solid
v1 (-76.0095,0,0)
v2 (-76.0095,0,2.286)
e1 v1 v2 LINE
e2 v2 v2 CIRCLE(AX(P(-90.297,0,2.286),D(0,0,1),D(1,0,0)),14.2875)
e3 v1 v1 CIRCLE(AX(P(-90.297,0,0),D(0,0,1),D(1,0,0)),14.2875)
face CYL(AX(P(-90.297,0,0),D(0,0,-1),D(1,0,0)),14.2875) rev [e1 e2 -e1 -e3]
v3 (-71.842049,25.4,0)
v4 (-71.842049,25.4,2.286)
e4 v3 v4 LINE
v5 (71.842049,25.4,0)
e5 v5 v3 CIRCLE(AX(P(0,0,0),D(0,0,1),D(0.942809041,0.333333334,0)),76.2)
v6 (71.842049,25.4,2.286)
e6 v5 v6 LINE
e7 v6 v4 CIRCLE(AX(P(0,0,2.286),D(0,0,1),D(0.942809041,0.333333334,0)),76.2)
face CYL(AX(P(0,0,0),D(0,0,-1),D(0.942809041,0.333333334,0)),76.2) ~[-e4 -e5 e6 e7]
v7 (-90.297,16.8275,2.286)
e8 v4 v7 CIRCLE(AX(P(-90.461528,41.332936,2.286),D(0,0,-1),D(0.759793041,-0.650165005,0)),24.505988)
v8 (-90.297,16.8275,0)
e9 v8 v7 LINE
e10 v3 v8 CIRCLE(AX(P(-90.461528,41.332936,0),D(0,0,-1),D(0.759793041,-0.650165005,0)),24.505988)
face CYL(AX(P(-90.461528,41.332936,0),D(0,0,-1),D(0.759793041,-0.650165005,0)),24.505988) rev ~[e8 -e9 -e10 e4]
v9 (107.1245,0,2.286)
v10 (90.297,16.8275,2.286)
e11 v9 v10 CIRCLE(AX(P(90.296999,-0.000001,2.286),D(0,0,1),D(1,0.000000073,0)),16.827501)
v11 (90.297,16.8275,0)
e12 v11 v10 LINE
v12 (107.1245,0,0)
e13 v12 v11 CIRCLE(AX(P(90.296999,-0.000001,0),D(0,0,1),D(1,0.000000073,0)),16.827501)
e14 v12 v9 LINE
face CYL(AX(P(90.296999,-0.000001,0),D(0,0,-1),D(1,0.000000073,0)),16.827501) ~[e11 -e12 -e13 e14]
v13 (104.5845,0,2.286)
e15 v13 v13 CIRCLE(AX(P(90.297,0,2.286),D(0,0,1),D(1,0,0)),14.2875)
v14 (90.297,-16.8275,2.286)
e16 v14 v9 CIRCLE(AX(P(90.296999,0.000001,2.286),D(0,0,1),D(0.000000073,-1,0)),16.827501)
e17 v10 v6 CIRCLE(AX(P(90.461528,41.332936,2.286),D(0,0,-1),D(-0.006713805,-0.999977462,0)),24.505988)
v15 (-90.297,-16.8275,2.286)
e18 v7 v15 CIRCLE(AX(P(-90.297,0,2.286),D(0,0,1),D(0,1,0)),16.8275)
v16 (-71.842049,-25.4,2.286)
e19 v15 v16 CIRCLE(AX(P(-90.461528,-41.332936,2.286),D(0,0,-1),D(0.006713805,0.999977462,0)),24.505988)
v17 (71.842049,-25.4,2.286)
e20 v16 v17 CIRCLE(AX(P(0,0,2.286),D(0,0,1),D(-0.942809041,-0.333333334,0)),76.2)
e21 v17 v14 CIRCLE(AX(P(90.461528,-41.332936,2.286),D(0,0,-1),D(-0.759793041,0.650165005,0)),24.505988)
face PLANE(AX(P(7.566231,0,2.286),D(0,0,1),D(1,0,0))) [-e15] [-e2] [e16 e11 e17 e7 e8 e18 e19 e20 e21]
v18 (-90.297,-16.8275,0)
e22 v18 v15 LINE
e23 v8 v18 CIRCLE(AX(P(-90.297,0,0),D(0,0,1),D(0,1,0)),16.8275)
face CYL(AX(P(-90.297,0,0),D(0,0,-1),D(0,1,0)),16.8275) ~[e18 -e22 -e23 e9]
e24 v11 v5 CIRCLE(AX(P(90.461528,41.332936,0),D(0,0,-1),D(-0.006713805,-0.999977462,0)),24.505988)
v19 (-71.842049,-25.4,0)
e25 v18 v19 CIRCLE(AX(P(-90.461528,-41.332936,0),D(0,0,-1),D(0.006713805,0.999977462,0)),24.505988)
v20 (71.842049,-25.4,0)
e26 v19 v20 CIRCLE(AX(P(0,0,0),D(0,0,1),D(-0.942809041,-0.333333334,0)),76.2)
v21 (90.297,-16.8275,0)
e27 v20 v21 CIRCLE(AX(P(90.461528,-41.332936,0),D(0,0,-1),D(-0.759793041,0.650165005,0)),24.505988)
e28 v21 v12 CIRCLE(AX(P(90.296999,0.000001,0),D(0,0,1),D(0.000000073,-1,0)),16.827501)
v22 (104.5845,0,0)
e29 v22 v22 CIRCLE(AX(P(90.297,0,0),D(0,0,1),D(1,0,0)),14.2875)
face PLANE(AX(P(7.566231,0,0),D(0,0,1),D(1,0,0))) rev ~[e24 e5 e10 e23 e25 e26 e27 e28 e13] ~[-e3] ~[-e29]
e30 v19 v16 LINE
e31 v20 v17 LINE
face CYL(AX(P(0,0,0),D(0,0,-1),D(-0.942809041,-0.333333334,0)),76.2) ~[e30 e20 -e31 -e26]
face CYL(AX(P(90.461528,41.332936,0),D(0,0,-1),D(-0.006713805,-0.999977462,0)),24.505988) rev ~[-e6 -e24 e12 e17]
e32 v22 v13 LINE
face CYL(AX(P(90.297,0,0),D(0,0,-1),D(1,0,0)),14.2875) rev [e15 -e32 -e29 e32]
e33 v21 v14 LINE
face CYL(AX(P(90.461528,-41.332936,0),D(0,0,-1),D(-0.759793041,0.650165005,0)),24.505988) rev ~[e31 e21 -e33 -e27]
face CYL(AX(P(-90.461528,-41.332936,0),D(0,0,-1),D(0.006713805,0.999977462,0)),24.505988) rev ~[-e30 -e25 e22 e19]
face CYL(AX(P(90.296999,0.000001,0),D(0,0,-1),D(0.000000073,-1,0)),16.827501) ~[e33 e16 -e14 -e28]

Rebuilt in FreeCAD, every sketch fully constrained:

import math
import FreeCAD as App
import Part
import Sketcher
Q = App.Units.Quantity

doc = App.newDocument("Part")
body = doc.addObject("PartDesign::Body", "Body")

sketch1 = body.newObject("Sketcher::SketchObject", "Sketch")
sketch1.AttachmentSupport = (doc.getObject("XY_Plane"), [""])
sketch1.MapMode = "FlatFace"
sketch1.addGeometry(Part.ArcOfCircle(Part.Circle(App.Vector(90, 41, 0), App.Vector(0, 0, 1), 25), math.radians(-139), math.radians(-90)), False)
sketch1.addGeometry(Part.ArcOfCircle(Part.Circle(App.Vector(0, 0, 0), App.Vector(0, 0, 1), 76), math.radians(19), math.radians(161)), False)
sketch1.addGeometry(Part.ArcOfCircle(Part.Circle(App.Vector(-90, 41, 0), App.Vector(0, 0, 1), 25), math.radians(-90), math.radians(-41)), False)
sketch1.addGeometry(Part.ArcOfCircle(Part.Circle(App.Vector(-90, 0, 0), App.Vector(0, 0, 1), 17), math.radians(90), math.radians(270)), False)
sketch1.addGeometry(Part.ArcOfCircle(Part.Circle(App.Vector(-90, -41, 0), App.Vector(0, 0, 1), 25), math.radians(41), math.radians(90)), False)
sketch1.addGeometry(Part.ArcOfCircle(Part.Circle(App.Vector(0, 0, 0), App.Vector(0, 0, 1), 76), math.radians(-161), math.radians(-19)), False)
sketch1.addGeometry(Part.ArcOfCircle(Part.Circle(App.Vector(90, -41, 0), App.Vector(0, 0, 1), 25), math.radians(90), math.radians(139)), False)
sketch1.addGeometry(Part.ArcOfCircle(Part.Circle(App.Vector(90, 0, 0), App.Vector(0, 0, 1), 17), math.radians(-90), math.radians(0)), False)
sketch1.addGeometry(Part.ArcOfCircle(Part.Circle(App.Vector(90, 0, 0), App.Vector(0, 0, 1), 17), math.radians(0), math.radians(90)), False)
sketch1.addGeometry(Part.Circle(App.Vector(-90, 0, 0), App.Vector(0, 0, 1), 14), False)
sketch1.addGeometry(Part.Circle(App.Vector(90, 0, 0), App.Vector(0, 0, 1), 14), False)
sketch1.addConstraint(Sketcher.Constraint("Coincident", 0, 1, 1, 1))
sketch1.addConstraint(Sketcher.Constraint("Coincident", 1, 2, 2, 2))
sketch1.addConstraint(Sketcher.Constraint("Coincident", 2, 1, 3, 1))
sketch1.addConstraint(Sketcher.Constraint("Coincident", 3, 2, 4, 2))
sketch1.addConstraint(Sketcher.Constraint("Coincident", 4, 1, 5, 1))
sketch1.addConstraint(Sketcher.Constraint("Coincident", 5, 2, 6, 2))
sketch1.addConstraint(Sketcher.Constraint("Coincident", 6, 1, 7, 1))
sketch1.addConstraint(Sketcher.Constraint("Tangent", 7, 2, 8, 1))
sketch1.addConstraint(Sketcher.Constraint("Coincident", 8, 2, 0, 2))
sketch1.addConstraint(Sketcher.Constraint("Coincident", 1, 3, -1, 1))
sketch1.addConstraint(Sketcher.Constraint("Coincident", 5, 3, -1, 1))
sketch1.addConstraint(Sketcher.Constraint("Coincident", 9, 3, 3, 3))
sketch1.addConstraint(Sketcher.Constraint("Coincident", 10, 3, 7, 3))
sketch1.addConstraint(Sketcher.Constraint("Equal", 0, 2))
sketch1.addConstraint(Sketcher.Constraint("Equal", 2, 4))
sketch1.addConstraint(Sketcher.Constraint("Equal", 1, 5))
sketch1.addConstraint(Sketcher.Constraint("Equal", 4, 6))
sketch1.addConstraint(Sketcher.Constraint("Equal", 3, 7))
sketch1.addConstraint(Sketcher.Constraint("Equal", 7, 8))
sketch1.addConstraint(Sketcher.Constraint("Equal", 9, 10))
sketch1.addConstraint(Sketcher.Constraint("Symmetric", 0, 3, 4, 3, -1, 1))
sketch1.addConstraint(Sketcher.Constraint("Symmetric", 2, 3, 6, 3, -1, 1))
sketch1.addConstraint(Sketcher.Constraint("Symmetric", 3, 3, 7, 3, -1, 1))
sketch1.addConstraint(Sketcher.Constraint("Symmetric", 0, 3, 2, 3, -2))
sketch1.addConstraint(Sketcher.Constraint("PointOnObject", 3, 3, -1))
sketch1.addConstraint(Sketcher.Constraint("PointOnObject", 7, 2, -1))
sketch1.addConstraint(Sketcher.Constraint("Vertical", 9, 3, 2, 1))
sketch1.addConstraint(Sketcher.Constraint("Radius", 1, Q("3 in")))
sketch1.addConstraint(Sketcher.Constraint("Diameter", 9, Q("1.125 in")))
sketch1.addConstraint(Sketcher.Constraint("DistanceY", -1, 1, 0, 1, Q("1 in")))
sketch1.addConstraint(Sketcher.Constraint("Radius", 3, Q("0.6625 in")))
sketch1.addConstraint(Sketcher.Constraint("DistanceX", 3, 3, 7, 3, Q("7.11 in")))
sketch1.addConstraint(Sketcher.Constraint("Radius", 0, Q("24.505988 mm")))
pad1 = body.newObject("PartDesign::Pad", "Pad")
pad1.Profile = sketch1
pad1.Length = Q("0.09 in")

doc.recompute()
